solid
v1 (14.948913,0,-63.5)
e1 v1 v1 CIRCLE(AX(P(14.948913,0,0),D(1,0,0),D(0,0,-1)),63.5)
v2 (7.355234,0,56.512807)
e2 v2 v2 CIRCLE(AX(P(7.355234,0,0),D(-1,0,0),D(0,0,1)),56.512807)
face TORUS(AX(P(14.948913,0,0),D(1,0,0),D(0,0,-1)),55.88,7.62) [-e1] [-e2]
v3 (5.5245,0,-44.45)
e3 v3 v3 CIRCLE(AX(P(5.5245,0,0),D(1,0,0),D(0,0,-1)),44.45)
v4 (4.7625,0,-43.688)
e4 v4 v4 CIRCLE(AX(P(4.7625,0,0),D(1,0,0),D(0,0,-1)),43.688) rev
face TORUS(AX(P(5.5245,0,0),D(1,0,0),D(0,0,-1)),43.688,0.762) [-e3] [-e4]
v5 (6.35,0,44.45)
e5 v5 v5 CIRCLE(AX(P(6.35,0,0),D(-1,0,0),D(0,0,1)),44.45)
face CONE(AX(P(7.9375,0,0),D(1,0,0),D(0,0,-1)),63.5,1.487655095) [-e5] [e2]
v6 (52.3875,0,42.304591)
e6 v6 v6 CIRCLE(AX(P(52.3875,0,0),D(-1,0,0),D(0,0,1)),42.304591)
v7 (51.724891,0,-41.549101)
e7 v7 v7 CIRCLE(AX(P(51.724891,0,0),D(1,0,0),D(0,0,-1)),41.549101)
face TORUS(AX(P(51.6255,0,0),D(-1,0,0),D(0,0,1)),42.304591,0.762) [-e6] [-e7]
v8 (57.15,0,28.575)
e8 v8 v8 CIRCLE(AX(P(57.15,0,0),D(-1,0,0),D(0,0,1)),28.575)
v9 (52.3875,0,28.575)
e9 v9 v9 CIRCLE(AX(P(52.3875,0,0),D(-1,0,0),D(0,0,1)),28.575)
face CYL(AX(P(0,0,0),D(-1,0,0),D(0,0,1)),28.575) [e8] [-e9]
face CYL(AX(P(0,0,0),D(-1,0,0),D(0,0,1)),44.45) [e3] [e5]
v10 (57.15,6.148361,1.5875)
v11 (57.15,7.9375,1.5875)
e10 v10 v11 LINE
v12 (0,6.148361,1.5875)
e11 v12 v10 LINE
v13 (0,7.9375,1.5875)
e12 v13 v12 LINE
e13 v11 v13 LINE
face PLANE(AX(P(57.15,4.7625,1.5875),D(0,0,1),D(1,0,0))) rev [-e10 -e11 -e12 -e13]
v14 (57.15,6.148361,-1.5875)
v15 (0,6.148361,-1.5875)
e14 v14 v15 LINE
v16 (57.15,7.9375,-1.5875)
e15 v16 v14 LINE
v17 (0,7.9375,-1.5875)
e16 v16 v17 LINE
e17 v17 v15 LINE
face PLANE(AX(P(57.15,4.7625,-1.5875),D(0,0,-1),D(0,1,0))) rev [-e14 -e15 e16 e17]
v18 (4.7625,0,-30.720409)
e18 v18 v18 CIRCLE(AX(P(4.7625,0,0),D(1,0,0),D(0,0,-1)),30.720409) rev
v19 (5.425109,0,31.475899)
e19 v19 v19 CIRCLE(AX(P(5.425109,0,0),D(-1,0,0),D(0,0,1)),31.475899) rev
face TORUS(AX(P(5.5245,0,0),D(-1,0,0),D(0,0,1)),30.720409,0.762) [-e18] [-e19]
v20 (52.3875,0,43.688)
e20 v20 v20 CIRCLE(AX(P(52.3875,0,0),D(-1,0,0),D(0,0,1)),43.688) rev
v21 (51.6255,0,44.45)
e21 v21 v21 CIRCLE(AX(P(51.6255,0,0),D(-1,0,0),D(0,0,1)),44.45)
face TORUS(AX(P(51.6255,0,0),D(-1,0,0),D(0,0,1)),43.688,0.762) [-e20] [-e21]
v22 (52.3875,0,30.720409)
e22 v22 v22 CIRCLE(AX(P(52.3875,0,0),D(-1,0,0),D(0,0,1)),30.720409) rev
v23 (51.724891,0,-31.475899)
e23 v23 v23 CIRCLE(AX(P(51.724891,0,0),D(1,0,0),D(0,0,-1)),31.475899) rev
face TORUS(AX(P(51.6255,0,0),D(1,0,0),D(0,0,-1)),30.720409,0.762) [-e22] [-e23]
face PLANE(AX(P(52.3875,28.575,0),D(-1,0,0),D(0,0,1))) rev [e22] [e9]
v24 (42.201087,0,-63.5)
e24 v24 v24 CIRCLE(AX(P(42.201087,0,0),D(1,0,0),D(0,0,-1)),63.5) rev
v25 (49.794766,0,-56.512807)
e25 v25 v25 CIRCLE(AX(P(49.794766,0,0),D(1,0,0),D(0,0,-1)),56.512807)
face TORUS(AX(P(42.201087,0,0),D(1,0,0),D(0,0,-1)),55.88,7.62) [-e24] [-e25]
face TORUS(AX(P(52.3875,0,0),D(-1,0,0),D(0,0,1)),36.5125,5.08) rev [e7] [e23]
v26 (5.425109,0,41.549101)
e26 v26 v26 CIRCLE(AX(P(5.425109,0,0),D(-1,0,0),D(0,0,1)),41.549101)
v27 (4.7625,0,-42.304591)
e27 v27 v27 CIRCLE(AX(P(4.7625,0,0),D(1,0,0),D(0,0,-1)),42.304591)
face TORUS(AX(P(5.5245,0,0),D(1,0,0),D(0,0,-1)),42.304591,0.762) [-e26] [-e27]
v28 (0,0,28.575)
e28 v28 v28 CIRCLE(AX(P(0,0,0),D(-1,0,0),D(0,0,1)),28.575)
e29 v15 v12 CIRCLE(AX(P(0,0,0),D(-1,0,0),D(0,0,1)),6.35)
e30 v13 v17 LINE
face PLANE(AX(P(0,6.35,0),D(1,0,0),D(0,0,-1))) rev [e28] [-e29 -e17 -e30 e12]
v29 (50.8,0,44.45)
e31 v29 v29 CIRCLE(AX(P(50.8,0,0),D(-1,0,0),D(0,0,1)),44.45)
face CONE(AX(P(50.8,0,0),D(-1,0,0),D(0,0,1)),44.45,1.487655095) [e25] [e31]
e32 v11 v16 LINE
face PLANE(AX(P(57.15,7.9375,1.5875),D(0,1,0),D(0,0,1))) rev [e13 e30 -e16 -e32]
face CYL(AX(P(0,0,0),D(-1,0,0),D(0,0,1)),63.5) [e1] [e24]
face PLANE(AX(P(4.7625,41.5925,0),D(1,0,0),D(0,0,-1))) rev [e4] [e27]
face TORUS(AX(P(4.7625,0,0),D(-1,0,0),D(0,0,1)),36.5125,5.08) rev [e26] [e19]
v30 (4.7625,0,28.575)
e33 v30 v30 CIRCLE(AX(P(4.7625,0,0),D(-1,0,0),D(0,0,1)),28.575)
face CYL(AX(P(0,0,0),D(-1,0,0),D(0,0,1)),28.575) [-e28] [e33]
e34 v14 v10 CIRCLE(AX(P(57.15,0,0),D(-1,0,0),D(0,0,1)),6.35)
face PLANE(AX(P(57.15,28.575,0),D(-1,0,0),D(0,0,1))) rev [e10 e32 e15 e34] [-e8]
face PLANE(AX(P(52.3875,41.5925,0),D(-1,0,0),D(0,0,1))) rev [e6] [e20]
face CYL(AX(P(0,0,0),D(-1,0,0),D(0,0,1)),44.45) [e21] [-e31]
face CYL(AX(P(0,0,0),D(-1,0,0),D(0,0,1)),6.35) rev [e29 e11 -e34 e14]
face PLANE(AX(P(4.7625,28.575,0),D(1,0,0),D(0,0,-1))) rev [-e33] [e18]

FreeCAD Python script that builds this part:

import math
import FreeCAD as App
import Part
import Sketcher
from FreeCAD import Vector
Q = App.Units.Quantity


def edges_at(feature, points):
    """Names of the edges that pass closest to the given points."""
    edges = feature.Shape.Edges
    near = lambda p: min(range(len(edges)), key=lambda i: edges[i].distToShape(Part.Vertex(*p))[0])
    return sorted({f"Edge{near(p) + 1}" for p in points})

doc = App.newDocument("Part")
body = doc.addObject("PartDesign::Body", "Body")

sketch1 = doc.addObject("Sketcher::SketchObject", "Sketch")
body.addObject(sketch1)
sketch1.AttachmentSupport = (doc.XY_Plane, [""])
sketch1.MapMode = "FlatFace"
sketch1.addGeometry(Part.LineSegment(Vector(0, 28.6, 0), Vector(0, 6.3, 0)), False)
sketch1.addGeometry(Part.LineSegment(Vector(0, 6.3, 0), Vector(57.1, 6.3, 0)), False)
sketch1.addGeometry(Part.LineSegment(Vector(57.1, 6.3, 0), Vector(57.1, 28.6, 0)), False)
sketch1.addGeometry(Part.LineSegment(Vector(57.1, 28.6, 0), Vector(52.4, 28.6, 0)), False)
sketch1.addGeometry(Part.LineSegment(Vector(52.4, 28.6, 0), Vector(52.4, 31.4, 0)), False)
sketch1.addGeometry(Part.ArcOfCircle(Part.Circle(Vector(52.4, 36.5, 0), Vector(0, 0, 1), 5.1), math.radians(90), math.radians(270)), False)
sketch1.addGeometry(Part.LineSegment(Vector(52.4, 41.6, 0), Vector(52.4, 44.5, 0)), False)
sketch1.addGeometry(Part.LineSegment(Vector(52.4, 44.5, 0), Vector(50.8, 44.5, 0)), False)
sketch1.addGeometry(Part.LineSegment(Vector(50.8, 44.5, 0), Vector(49.2, 63.5, 0)), False)
sketch1.addGeometry(Part.LineSegment(Vector(49.2, 63.5, 0), Vector(7.9, 63.5, 0)), False)
sketch1.addGeometry(Part.LineSegment(Vector(7.9, 63.5, 0), Vector(6.3, 44.5, 0)), False)
sketch1.addGeometry(Part.LineSegment(Vector(6.3, 44.5, 0), Vector(4.8, 44.5, 0)), False)
sketch1.addGeometry(Part.LineSegment(Vector(4.8, 44.5, 0), Vector(4.8, 41.6, 0)), False)
sketch1.addGeometry(Part.ArcOfCircle(Part.Circle(Vector(4.8, 36.5, 0), Vector(0, 0, 1), 5.1), math.radians(-90), math.radians(90)), False)
sketch1.addGeometry(Part.LineSegment(Vector(4.8, 31.4, 0), Vector(4.8, 28.6, 0)), False)
sketch1.addGeometry(Part.LineSegment(Vector(4.8, 28.6, 0), Vector(0, 28.6, 0)), False)
sketch1.addConstraint(Sketcher.Constraint("Coincident", 0, 2, 1, 1))
sketch1.addConstraint(Sketcher.Constraint("Coincident", 1, 2, 2, 1))
sketch1.addConstraint(Sketcher.Constraint("Coincident", 2, 2, 3, 1))
sketch1.addConstraint(Sketcher.Constraint("Coincident", 3, 2, 4, 1))
sketch1.addConstraint(Sketcher.Constraint("Coincident", 4, 2, 5, 2))
sketch1.addConstraint(Sketcher.Constraint("Coincident", 5, 1, 6, 1))
sketch1.addConstraint(Sketcher.Constraint("Coincident", 6, 2, 7, 1))
sketch1.addConstraint(Sketcher.Constraint("Coincident", 7, 2, 8, 1))
sketch1.addConstraint(Sketcher.Constraint("Coincident", 8, 2, 9, 1))
sketch1.addConstraint(Sketcher.Constraint("Coincident", 9, 2, 10, 1))
sketch1.addConstraint(Sketcher.Constraint("Coincident", 10, 2, 11, 1))
sketch1.addConstraint(Sketcher.Constraint("Coincident", 11, 2, 12, 1))
sketch1.addConstraint(Sketcher.Constraint("Coincident", 12, 2, 13, 2))
sketch1.addConstraint(Sketcher.Constraint("Coincident", 13, 1, 14, 1))
sketch1.addConstraint(Sketcher.Constraint("Coincident", 14, 2, 15, 1))
sketch1.addConstraint(Sketcher.Constraint("Coincident", 15, 2, 0, 1))
sketch1.addConstraint(Sketcher.Constraint("Vertical", 0))
sketch1.addConstraint(Sketcher.Constraint("Horizontal", 1))
sketch1.addConstraint(Sketcher.Constraint("Vertical", 2))
sketch1.addConstraint(Sketcher.Constraint("Horizontal", 3))
sketch1.addConstraint(Sketcher.Constraint("Vertical", 4))
sketch1.addConstraint(Sketcher.Constraint("Vertical", 6))
sketch1.addConstraint(Sketcher.Constraint("Horizontal", 7))
sketch1.addConstraint(Sketcher.Constraint("Horizontal", 9))
sketch1.addConstraint(Sketcher.Constraint("Horizontal", 11))
sketch1.addConstraint(Sketcher.Constraint("Vertical", 12))
sketch1.addConstraint(Sketcher.Constraint("Vertical", 14))
sketch1.addConstraint(Sketcher.Constraint("Horizontal", 15))
sketch1.addConstraint(Sketcher.Constraint("Equal", 5, 13))
sketch1.addConstraint(Sketcher.Constraint("PointOnObject", 0, 2, -2))
sketch1.addConstraint(Sketcher.Constraint("Horizontal", 5, 3, 13, 3))
sketch1.addConstraint(Sketcher.Constraint("Horizontal", 7, 2, 10, 2))
sketch1.addConstraint(Sketcher.Constraint("Horizontal", 3, 2, 14, 2))
sketch1.addConstraint(Sketcher.Constraint("Vertical", 5, 3, 3, 2))
sketch1.addConstraint(Sketcher.Constraint("Vertical", 4, 2, 5, 1))
sketch1.addConstraint(Sketcher.Constraint("Vertical", 13, 3, 11, 2))
sketch1.addConstraint(Sketcher.Constraint("Vertical", 12, 2, 13, 1))
sketch1.addConstraint(Sketcher.Constraint("Equal", 7, 11))
sketch1.addConstraint(Sketcher.Constraint("Equal", 3, 15))
sketch1.addConstraint(Sketcher.Constraint("Equal", 4, 6))
sketch1.addConstraint(Sketcher.Constraint("Equal", 8, 10))
sketch1.addConstraint(Sketcher.Constraint("Radius", 5, Q("0.2 in")))
sketch1.addConstraint(Sketcher.Constraint("DistanceX", -1, 1, 7, 2, Q("2 in")))
sketch1.addConstraint(Sketcher.Constraint("DistanceX", 1, 1, 1, 2, Q("2.25 in")))
sketch1.addConstraint(Sketcher.Constraint("DistanceY", -1, 1, 8, 2, Q("2.5 in")))
sketch1.addConstraint(Sketcher.Constraint("DistanceY", 0, 2, 10, 2, Q("1.5 in")))
sketch1.addConstraint(Sketcher.Constraint("DistanceX", 3, 2, 3, 1, Q("0.1875 in")))
sketch1.addConstraint(Sketcher.Constraint("DistanceX", 9, 2, 9, 1, Q("1.625 in")))
sketch1.addConstraint(Sketcher.Constraint("DistanceY", 0, 2, 0, 1, Q("0.875 in")))
sketch1.addConstraint(Sketcher.Constraint("DistanceY", -1, 1, 0, 2, Q("0.25 in")))
revolution = doc.addObject("PartDesign::Revolution", "Revolution")
body.addObject(revolution)
revolution.Profile = sketch1
revolution.ReferenceAxis = (sketch1, ["H_Axis"])
revolution.Angle = 360
doc.recompute()

fillet = doc.addObject("PartDesign::Fillet", "Fillet")
body.addObject(fillet)
fillet.Base = (revolution, edges_at(revolution, [(7.938, 0, -63.5), (49.212, 0, -63.5)]))
fillet.Radius = Q("0.3 in")
doc.recompute()

fillet2 = doc.addObject("PartDesign::Fillet", "Fillet001")
body.addObject(fillet2)
fillet2.Base = (fillet, edges_at(fillet, [
    (4.763, 0, -31.433),
    (4.763, 0, -41.593),
    (4.763, 0, -44.45),
    (52.388, 0, -44.45),
    (52.388, 0, -41.593),
    (52.388, 0, -31.433),
]))
fillet2.Radius = Q("0.03 in")

sketch2 = doc.addObject("Sketcher::SketchObject", "Sketch001")
body.addObject(sketch2)
sketch2.AttachmentSupport = (doc.YZ_Plane, [""])
sketch2.MapMode = "FlatFace"
sketch2.addGeometry(Part.LineSegment(Vector(7.9, -1.6, 0), Vector(4.8, -1.6, 0)), False)
sketch2.addGeometry(Part.LineSegment(Vector(4.8, -1.6, 0), Vector(4.8, 1.6, 0)), False)
sketch2.addGeometry(Part.LineSegment(Vector(4.8, 1.6, 0), Vector(7.9, 1.6, 0)), False)
sketch2.addGeometry(Part.LineSegment(Vector(7.9, 1.6, 0), Vector(7.9, -1.6, 0)), False)
sketch2.addConstraint(Sketcher.Constraint("Coincident", 0, 2, 1, 1))
sketch2.addConstraint(Sketcher.Constraint("Coincident", 1, 2, 2, 1))
sketch2.addConstraint(Sketcher.Constraint("Coincident", 2, 2, 3, 1))
sketch2.addConstraint(Sketcher.Constraint("Coincident", 3, 2, 0, 1))
sketch2.addConstraint(Sketcher.Constraint("Horizontal", 0))
sketch2.addConstraint(Sketcher.Constraint("Vertical", 1))
sketch2.addConstraint(Sketcher.Constraint("Horizontal", 2))
sketch2.addConstraint(Sketcher.Constraint("Vertical", 3))
sketch2.addConstraint(Sketcher.Constraint("Equal", 2, 1))
sketch2.addConstraint(Sketcher.Constraint("DistanceX", 0, 2, 0, 1, Q("0.125 in")))
sketch2.addConstraint(Sketcher.Constraint("DistanceX", -1, 1, 0, 2, Q("0.1875 in")))
sketch2.addConstraint(Sketcher.Constraint("DistanceY", 0, 2, -1, 1, Q("0.0625 in")))
pocket1 = doc.addObject("PartDesign::Pocket", "Pocket")
body.addObject(pocket1)
pocket1.Profile = sketch2
pocket1.Type = "ThroughAll"
pocket1.Reversed = True

doc.recompute()
